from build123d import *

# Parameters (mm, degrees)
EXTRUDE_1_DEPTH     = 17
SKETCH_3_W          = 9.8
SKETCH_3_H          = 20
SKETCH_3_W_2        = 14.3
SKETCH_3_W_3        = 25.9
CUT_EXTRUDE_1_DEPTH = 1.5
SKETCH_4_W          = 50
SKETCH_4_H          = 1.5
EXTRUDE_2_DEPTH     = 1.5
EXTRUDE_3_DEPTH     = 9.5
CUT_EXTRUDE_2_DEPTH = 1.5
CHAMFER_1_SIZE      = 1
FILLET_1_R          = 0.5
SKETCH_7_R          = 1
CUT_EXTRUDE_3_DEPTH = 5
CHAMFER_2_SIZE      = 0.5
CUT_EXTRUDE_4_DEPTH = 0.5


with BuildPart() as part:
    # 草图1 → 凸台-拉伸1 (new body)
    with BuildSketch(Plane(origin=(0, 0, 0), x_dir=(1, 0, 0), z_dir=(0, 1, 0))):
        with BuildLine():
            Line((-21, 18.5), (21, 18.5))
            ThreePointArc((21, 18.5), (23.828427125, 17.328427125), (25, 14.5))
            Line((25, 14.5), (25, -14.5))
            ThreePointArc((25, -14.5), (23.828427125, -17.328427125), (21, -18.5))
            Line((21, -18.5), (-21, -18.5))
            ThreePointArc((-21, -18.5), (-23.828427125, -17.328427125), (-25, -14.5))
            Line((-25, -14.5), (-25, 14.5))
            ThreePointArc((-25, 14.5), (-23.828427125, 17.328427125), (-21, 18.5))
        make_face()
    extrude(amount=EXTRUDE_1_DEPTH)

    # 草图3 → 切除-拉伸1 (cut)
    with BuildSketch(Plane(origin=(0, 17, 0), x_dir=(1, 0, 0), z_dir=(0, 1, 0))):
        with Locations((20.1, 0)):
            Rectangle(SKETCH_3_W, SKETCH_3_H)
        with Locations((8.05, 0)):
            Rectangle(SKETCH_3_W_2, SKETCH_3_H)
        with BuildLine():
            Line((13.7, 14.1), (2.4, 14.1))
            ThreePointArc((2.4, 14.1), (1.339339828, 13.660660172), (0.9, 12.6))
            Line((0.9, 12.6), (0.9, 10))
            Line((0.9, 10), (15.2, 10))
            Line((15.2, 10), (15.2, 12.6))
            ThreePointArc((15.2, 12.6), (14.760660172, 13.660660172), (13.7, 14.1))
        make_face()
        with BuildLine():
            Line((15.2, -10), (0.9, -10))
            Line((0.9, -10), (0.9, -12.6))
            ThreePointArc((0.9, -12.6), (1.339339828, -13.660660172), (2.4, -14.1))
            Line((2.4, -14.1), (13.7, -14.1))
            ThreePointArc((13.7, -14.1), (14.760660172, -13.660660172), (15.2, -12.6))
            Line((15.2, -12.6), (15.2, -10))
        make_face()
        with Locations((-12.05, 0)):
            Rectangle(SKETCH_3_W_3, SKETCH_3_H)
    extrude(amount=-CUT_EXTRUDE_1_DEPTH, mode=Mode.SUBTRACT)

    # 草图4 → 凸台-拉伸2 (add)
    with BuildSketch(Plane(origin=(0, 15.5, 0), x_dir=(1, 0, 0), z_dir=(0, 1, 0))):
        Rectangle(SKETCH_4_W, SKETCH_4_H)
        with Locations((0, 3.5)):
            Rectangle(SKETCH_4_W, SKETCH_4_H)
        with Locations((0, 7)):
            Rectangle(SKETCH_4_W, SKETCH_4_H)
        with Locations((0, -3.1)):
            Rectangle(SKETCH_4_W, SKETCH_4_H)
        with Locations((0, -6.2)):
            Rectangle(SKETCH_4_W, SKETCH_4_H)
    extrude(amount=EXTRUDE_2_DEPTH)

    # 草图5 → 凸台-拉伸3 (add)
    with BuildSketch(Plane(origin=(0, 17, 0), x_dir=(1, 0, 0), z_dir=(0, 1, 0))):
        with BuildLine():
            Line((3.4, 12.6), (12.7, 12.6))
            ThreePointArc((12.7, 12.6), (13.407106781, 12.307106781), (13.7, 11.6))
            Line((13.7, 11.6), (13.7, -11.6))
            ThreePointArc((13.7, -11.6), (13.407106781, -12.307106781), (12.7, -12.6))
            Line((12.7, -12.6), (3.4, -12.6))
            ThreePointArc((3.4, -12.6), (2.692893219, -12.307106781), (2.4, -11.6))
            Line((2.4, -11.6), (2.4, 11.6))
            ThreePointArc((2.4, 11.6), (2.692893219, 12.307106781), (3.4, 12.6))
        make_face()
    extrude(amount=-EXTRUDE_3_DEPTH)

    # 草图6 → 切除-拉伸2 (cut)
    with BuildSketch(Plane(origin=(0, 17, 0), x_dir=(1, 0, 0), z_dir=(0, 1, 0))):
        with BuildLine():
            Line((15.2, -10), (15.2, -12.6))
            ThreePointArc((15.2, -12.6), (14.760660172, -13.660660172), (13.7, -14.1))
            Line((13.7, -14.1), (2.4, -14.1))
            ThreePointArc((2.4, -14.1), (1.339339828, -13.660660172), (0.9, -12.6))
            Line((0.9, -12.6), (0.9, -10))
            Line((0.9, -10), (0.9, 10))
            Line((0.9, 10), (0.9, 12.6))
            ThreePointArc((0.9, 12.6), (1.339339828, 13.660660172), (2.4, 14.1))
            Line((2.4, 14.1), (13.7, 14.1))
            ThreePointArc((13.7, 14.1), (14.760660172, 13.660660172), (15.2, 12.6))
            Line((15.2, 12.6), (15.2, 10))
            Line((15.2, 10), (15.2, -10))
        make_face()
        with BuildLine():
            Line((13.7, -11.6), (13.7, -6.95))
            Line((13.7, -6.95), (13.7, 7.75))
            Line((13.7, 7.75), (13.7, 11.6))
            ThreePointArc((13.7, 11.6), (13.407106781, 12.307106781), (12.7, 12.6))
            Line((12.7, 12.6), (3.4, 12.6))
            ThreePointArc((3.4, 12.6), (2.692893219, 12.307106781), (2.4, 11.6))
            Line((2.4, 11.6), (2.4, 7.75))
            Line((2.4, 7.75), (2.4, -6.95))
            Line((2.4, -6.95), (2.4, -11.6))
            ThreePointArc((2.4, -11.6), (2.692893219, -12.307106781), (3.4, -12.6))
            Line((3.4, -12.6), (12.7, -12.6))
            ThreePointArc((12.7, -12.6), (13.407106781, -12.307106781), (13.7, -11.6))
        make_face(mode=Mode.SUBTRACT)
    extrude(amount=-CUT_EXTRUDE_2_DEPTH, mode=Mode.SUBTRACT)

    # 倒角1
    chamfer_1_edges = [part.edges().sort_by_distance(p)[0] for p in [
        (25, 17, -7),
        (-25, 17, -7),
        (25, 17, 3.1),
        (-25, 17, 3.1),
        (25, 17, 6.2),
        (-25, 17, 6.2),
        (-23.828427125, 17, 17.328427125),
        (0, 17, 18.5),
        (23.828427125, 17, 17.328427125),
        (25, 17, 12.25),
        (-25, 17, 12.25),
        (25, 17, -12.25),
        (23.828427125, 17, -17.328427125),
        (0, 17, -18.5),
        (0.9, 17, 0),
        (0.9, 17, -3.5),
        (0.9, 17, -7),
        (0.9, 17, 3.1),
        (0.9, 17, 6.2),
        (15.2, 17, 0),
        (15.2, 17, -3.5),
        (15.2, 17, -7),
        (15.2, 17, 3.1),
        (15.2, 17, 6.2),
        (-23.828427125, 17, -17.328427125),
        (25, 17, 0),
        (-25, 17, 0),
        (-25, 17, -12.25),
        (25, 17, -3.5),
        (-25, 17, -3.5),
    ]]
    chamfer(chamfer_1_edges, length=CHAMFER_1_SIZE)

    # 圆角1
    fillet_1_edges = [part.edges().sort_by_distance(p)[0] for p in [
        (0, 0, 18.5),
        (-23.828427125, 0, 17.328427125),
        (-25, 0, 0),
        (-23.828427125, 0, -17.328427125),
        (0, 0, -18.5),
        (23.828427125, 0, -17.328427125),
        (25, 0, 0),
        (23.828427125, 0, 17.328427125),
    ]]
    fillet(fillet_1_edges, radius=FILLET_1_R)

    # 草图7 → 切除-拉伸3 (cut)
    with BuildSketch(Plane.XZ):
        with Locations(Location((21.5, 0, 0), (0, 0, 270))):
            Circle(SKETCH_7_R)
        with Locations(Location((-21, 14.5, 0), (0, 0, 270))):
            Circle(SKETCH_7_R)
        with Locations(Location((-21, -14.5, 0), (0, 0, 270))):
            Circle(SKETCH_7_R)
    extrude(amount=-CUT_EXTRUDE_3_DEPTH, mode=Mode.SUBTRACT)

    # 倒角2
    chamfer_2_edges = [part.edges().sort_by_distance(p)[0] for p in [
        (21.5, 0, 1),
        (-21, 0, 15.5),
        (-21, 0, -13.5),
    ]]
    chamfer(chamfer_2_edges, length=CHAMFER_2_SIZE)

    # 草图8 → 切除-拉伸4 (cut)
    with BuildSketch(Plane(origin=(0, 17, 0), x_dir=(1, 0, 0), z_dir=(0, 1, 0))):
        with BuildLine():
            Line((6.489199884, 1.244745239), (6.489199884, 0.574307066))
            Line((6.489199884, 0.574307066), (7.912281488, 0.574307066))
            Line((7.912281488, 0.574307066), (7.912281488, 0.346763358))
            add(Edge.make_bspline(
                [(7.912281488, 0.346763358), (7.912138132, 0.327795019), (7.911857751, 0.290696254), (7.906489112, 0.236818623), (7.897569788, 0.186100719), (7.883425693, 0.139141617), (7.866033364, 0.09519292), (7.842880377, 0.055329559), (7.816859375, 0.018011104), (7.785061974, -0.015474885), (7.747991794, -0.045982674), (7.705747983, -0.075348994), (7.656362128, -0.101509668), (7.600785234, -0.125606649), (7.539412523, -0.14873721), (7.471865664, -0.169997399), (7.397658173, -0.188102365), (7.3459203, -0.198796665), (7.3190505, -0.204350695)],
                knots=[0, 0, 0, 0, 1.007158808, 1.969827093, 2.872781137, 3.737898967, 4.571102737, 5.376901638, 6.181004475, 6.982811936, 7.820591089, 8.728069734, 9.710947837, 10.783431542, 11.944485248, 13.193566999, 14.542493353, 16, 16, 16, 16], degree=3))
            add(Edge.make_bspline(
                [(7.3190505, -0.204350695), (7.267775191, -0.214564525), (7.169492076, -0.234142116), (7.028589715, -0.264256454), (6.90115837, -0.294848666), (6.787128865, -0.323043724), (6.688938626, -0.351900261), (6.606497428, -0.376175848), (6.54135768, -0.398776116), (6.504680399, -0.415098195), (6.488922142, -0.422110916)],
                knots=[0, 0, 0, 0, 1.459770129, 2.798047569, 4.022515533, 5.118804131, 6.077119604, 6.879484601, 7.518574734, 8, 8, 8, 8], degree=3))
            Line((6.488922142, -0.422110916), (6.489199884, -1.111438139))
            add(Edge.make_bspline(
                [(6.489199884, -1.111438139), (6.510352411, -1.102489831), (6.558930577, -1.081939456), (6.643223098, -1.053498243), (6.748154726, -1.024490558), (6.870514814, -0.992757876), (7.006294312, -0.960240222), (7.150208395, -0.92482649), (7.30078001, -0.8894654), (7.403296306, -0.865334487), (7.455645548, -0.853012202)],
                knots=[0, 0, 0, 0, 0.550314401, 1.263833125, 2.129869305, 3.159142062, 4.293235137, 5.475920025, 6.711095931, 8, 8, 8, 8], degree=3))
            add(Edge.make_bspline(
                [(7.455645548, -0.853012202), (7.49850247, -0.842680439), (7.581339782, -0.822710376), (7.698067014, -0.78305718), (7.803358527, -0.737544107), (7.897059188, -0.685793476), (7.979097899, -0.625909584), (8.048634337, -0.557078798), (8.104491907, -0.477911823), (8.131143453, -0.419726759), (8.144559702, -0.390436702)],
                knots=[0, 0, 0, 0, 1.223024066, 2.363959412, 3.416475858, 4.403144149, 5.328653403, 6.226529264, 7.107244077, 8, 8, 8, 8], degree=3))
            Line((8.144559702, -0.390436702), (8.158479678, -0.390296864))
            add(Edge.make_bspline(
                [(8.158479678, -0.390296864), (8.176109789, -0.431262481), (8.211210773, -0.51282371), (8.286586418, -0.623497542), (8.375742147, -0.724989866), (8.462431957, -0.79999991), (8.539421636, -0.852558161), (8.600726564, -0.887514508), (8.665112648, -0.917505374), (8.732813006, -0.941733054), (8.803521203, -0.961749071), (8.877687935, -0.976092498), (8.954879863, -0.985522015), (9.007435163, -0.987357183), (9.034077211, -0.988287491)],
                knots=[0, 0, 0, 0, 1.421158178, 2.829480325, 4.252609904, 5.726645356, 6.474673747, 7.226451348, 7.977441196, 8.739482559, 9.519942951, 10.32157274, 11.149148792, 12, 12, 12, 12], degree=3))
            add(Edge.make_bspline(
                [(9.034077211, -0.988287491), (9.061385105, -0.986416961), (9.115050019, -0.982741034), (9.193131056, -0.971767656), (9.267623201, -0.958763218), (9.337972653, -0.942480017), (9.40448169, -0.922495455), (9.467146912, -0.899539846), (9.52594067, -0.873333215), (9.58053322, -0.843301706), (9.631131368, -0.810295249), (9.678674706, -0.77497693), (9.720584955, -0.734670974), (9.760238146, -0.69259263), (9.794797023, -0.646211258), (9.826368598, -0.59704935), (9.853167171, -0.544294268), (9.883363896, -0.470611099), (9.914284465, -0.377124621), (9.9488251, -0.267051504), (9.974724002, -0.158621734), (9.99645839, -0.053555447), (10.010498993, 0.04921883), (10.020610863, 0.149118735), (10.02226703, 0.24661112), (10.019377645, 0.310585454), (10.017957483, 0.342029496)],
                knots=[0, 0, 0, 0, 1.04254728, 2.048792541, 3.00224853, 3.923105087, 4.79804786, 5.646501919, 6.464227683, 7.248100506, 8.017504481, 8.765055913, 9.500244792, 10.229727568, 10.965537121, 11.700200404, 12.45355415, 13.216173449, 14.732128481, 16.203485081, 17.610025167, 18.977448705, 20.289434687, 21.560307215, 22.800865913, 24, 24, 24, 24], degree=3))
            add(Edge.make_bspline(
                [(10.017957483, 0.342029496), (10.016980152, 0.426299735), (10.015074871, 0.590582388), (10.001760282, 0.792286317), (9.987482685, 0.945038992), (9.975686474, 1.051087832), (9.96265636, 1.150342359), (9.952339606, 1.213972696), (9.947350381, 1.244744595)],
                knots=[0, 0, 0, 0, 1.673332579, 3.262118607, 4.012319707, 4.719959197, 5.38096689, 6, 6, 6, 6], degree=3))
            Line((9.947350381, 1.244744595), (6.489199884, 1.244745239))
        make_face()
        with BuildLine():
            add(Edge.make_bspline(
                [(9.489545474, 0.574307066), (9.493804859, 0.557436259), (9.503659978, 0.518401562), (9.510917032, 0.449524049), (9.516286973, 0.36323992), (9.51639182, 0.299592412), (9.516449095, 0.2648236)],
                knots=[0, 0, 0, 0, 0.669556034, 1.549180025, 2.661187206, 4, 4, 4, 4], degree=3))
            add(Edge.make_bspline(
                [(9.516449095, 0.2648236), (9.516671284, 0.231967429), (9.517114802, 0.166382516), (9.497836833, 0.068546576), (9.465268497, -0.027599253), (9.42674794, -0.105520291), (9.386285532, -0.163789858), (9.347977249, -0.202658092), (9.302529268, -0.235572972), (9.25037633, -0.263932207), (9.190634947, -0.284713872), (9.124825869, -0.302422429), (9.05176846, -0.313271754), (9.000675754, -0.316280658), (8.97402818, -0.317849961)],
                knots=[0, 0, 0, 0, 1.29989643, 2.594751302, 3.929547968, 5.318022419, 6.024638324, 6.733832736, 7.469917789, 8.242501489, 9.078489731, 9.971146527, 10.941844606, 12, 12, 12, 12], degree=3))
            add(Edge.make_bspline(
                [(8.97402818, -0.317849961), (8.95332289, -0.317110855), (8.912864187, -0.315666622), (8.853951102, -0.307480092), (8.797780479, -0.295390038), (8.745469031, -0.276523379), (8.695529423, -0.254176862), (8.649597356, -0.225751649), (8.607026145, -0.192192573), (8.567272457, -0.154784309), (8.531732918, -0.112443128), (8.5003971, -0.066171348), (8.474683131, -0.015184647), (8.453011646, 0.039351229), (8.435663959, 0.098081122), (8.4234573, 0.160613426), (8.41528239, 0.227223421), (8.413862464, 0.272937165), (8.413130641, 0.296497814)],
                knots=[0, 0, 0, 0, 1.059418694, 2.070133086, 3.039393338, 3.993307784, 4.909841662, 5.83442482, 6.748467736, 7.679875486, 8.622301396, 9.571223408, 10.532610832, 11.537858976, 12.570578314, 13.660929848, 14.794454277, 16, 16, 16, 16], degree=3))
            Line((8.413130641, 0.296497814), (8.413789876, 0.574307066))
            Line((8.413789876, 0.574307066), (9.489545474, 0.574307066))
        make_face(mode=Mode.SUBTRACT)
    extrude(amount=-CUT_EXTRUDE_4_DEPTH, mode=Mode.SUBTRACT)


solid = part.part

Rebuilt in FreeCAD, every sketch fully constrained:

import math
import FreeCAD as App
import Part
import Sketcher
Q = App.Units.Quantity


def edges_at(feature, points):
    """Names of the edges that pass closest to the given points."""
    edges = feature.Shape.Edges
    near = lambda p: min(range(len(edges)), key=lambda i: edges[i].distToShape(Part.Vertex(*p))[0])
    return sorted({f"Edge{near(p) + 1}" for p in points})


def add_polygon(sketch, points):
    """Adds a closed chain of lines whose ends are joined by coincident constraints."""
    first, n = sketch.GeometryCount, len(points)
    for a, b in zip(points, points[1:] + points[:1]):
        sketch.addGeometry(Part.LineSegment(App.Vector(*a, 0), App.Vector(*b, 0)), False)
    for i in range(n):
        sketch.addConstraint(Sketcher.Constraint("Coincident", first + i, 2, first + (i + 1) % n, 1))

doc = App.newDocument("Part")
body = doc.addObject("PartDesign::Body", "Body")

sketch1 = body.newObject("Sketcher::SketchObject", "Sketch")
sketch1.AttachmentSupport = (doc.getObject("XZ_Plane"), [""])
sketch1.MapMode = "FlatFace"
sketch1.addGeometry([
    Part.LineSegment(App.Vector(21, -18.5, 0), App.Vector(-21, -18.5, 0)),
    Part.ArcOfCircle(Part.Circle(App.Vector(-21, -14.5, 0), App.Vector(0, 0, 1), 4), math.radians(180), math.radians(270)),
    Part.LineSegment(App.Vector(-25, -14.5, 0), App.Vector(-25, 14.5, 0)),
    Part.ArcOfCircle(Part.Circle(App.Vector(-21, 14.5, 0), App.Vector(0, 0, 1), 4), math.radians(90), math.radians(180)),
    Part.LineSegment(App.Vector(-21, 18.5, 0), App.Vector(21, 18.5, 0)),
    Part.ArcOfCircle(Part.Circle(App.Vector(21, 14.5, 0), App.Vector(0, 0, 1), 4), math.radians(0), math.radians(90)),
    Part.LineSegment(App.Vector(25, 14.5, 0), App.Vector(25, -14.5, 0)),
    Part.ArcOfCircle(Part.Circle(App.Vector(21, -14.5, 0), App.Vector(0, 0, 1), 4), math.radians(-90), math.radians(0)),
], False)
sketch1.addConstraint([
    Sketcher.Constraint("Tangent", 0, 2, 1, 2),
    Sketcher.Constraint("Tangent", 1, 1, 2, 1),
    Sketcher.Constraint("Tangent", 2, 2, 3, 2),
    Sketcher.Constraint("Tangent", 3, 1, 4, 1),
    Sketcher.Constraint("Tangent", 4, 2, 5, 2),
    Sketcher.Constraint("Tangent", 5, 1, 6, 1),
    Sketcher.Constraint("Tangent", 6, 2, 7, 2),
    Sketcher.Constraint("Tangent", 7, 1, 0, 1),
    Sketcher.Constraint("Horizontal", 0),
    Sketcher.Constraint("Vertical", 2),
    Sketcher.Constraint("Horizontal", 4),
    Sketcher.Constraint("Vertical", 6),
    Sketcher.Constraint("Equal", 1, 3),
    Sketcher.Constraint("Equal", 3, 5),
    Sketcher.Constraint("Equal", 5, 7),
    Sketcher.Constraint("Symmetric", 1, 3, 5, 3, -1, 1),
    Sketcher.Constraint("Radius", 1, Q("4 mm")),
    Sketcher.Constraint("DistanceX", 0, 2, 0, 1, Q("42 mm")),
    Sketcher.Constraint("DistanceY", 2, 1, 2, 2, Q("29 mm")),
])
pad1 = body.newObject("PartDesign::Pad", "Pad")
pad1.Profile = sketch1
pad1.Length = 17
pad1.Reversed = True

sketch2 = body.newObject("Sketcher::SketchObject", "Sketch001")
sketch2.AttachmentSupport = (doc.getObject("XZ_Plane"), [""])
sketch2.MapMode = "FlatFace"
sketch2.AttachmentOffset = App.Placement(App.Vector(0, 0, -17), App.Rotation())
sketch2.addGeometry([
    Part.LineSegment(App.Vector(25, 10, 0), App.Vector(25, -10, 0)),
    Part.LineSegment(App.Vector(25, -10, 0), App.Vector(15.2, -10, 0)),
    Part.LineSegment(App.Vector(15.2, -10, 0), App.Vector(15.2, -12.6, 0)),
    Part.ArcOfCircle(Part.Circle(App.Vector(13.7, -12.6, 0), App.Vector(0, 0, 1), 1.5), math.radians(-90), math.radians(0)),
    Part.LineSegment(App.Vector(13.7, -14.1, 0), App.Vector(2.4, -14.1, 0)),
    Part.ArcOfCircle(Part.Circle(App.Vector(2.4, -12.6, 0), App.Vector(0, 0, 1), 1.5), math.radians(180), math.radians(270)),
    Part.LineSegment(App.Vector(0.9, -12.6, 0), App.Vector(0.9, -10, 0)),
    Part.LineSegment(App.Vector(0.9, -10, 0), App.Vector(-25, -10, 0)),
    Part.LineSegment(App.Vector(-25, -10, 0), App.Vector(-25, 10, 0)),
    Part.LineSegment(App.Vector(-25, 10, 0), App.Vector(0.9, 10, 0)),
    Part.LineSegment(App.Vector(0.9, 10, 0), App.Vector(0.9, 12.6, 0)),
    Part.ArcOfCircle(Part.Circle(App.Vector(2.4, 12.6, 0), App.Vector(0, 0, 1), 1.5), math.radians(90), math.radians(180)),
    Part.LineSegment(App.Vector(2.4, 14.1, 0), App.Vector(13.7, 14.1, 0)),
    Part.ArcOfCircle(Part.Circle(App.Vector(13.7, 12.6, 0), App.Vector(0, 0, 1), 1.5), math.radians(0), math.radians(90)),
    Part.LineSegment(App.Vector(15.2, 12.6, 0), App.Vector(15.2, 10, 0)),
    Part.LineSegment(App.Vector(15.2, 10, 0), App.Vector(25, 10, 0)),
], False)
sketch2.addConstraint([
    Sketcher.Constraint("Coincident", 0, 2, 1, 1),
    Sketcher.Constraint("Coincident", 1, 2, 2, 1),
    Sketcher.Constraint("Tangent", 2, 2, 3, 2),
    Sketcher.Constraint("Tangent", 3, 1, 4, 1),
    Sketcher.Constraint("Tangent", 4, 2, 5, 2),
    Sketcher.Constraint("Tangent", 5, 1, 6, 1),
    Sketcher.Constraint("Coincident", 6, 2, 7, 1),
    Sketcher.Constraint("Coincident", 7, 2, 8, 1),
    Sketcher.Constraint("Coincident", 8, 2, 9, 1),
    Sketcher.Constraint("Coincident", 9, 2, 10, 1),
    Sketcher.Constraint("Tangent", 10, 2, 11, 2),
    Sketcher.Constraint("Tangent", 11, 1, 12, 1),
    Sketcher.Constraint("Tangent", 12, 2, 13, 2),
    Sketcher.Constraint("Tangent", 13, 1, 14, 1),
    Sketcher.Constraint("Coincident", 14, 2, 15, 1),
    Sketcher.Constraint("Coincident", 15, 2, 0, 1),
    Sketcher.Constraint("Vertical", 0),
    Sketcher.Constraint("Horizontal", 1),
    Sketcher.Constraint("Vertical", 2),
    Sketcher.Constraint("Horizontal", 4),
    Sketcher.Constraint("Vertical", 6),
    Sketcher.Constraint("Horizontal", 7),
    Sketcher.Constraint("Vertical", 8),
    Sketcher.Constraint("Horizontal", 9),
    Sketcher.Constraint("Vertical", 10),
    Sketcher.Constraint("Horizontal", 12),
    Sketcher.Constraint("Vertical", 14),
    Sketcher.Constraint("Horizontal", 15),
    Sketcher.Constraint("Equal", 3, 5),
    Sketcher.Constraint("Equal", 5, 11),
    Sketcher.Constraint("Equal", 11, 13),
    Sketcher.Constraint("Symmetric", 0, 2, 8, 2, -1, 1),
    Sketcher.Constraint("Symmetric", 5, 3, 11, 3, -1),
    Sketcher.Constraint("Symmetric", 1, 2, 14, 2, -1),
    Sketcher.Constraint("Horizontal", 1, 2, 6, 2),
    Sketcher.Constraint("Radius", 3, Q("1.5 mm")),
    Sketcher.Constraint("DistanceY", 0, 2, 0, 1, Q("20 mm")),
    Sketcher.Constraint("DistanceX", 1, 2, 1, 1, Q("9.8 mm")),
    Sketcher.Constraint("DistanceX", 4, 2, 4, 1, Q("11.3 mm")),
    Sketcher.Constraint("DistanceX", 7, 2, 7, 1, Q("25.9 mm")),
    Sketcher.Constraint("DistanceY", 2, 2, 2, 1, Q("2.6 mm")),
])
pocket1 = body.newObject("PartDesign::Pocket", "Pocket")
pocket1.Profile = sketch2
pocket1.Length = 1.5
pocket1.Reversed = True

sketch3 = body.newObject("Sketcher::SketchObject", "Sketch002")
sketch3.AttachmentSupport = (doc.getObject("XZ_Plane"), [""])
sketch3.MapMode = "FlatFace"
sketch3.AttachmentOffset = App.Placement(App.Vector(0, 0, -15.5), App.Rotation())
add_polygon(sketch3, [(-25, -0.75), (-25, 0.75), (25, 0.75), (25, -0.75)])
add_polygon(sketch3, [(-25, -4.25), (-25, -2.75), (25, -2.75), (25, -4.25)])
add_polygon(sketch3, [(-25, -7.75), (-25, -6.25), (25, -6.25), (25, -7.75)])
add_polygon(sketch3, [(-25, 2.35), (-25, 3.85), (25, 3.85), (25, 2.35)])
add_polygon(sketch3, [(-25, 5.45), (-25, 6.95), (25, 6.95), (25, 5.45)])
sketch3.addConstraint([
    Sketcher.Constraint("Vertical", 0),
    Sketcher.Constraint("Horizontal", 1),
    Sketcher.Constraint("Vertical", 2),
    Sketcher.Constraint("Horizontal", 3),
    Sketcher.Constraint("Vertical", 4),
    Sketcher.Constraint("Horizontal", 5),
    Sketcher.Constraint("Vertical", 6),
    Sketcher.Constraint("Horizontal", 7),
    Sketcher.Constraint("Vertical", 8),
    Sketcher.Constraint("Horizontal", 9),
    Sketcher.Constraint("Vertical", 10),
    Sketcher.Constraint("Horizontal", 11),
    Sketcher.Constraint("Vertical", 12),
    Sketcher.Constraint("Horizontal", 13),
    Sketcher.Constraint("Vertical", 14),
    Sketcher.Constraint("Horizontal", 15),
    Sketcher.Constraint("Vertical", 16),
    Sketcher.Constraint("Horizontal", 17),
    Sketcher.Constraint("Vertical", 18),
    Sketcher.Constraint("Horizontal", 19),
    Sketcher.Constraint("Symmetric", 0, 2, 2, 2, -1, 1),
    Sketcher.Constraint("Vertical", 3, 2, 4, 2),
    Sketcher.Constraint("Vertical", 2, 2, 5, 2),
    Sketcher.Constraint("Vertical", 7, 2, 8, 2),
    Sketcher.Constraint("Vertical", 6, 2, 9, 2),
    Sketcher.Constraint("Vertical", 11, 2, 12, 2),
    Sketcher.Constraint("Vertical", 10, 2, 13, 2),
    Sketcher.Constraint("Vertical", 15, 2, 16, 2),
    Sketcher.Constraint("Vertical", 14, 2, 17, 2),
    Sketcher.Constraint("Equal", 2, 4),
    Sketcher.Constraint("Equal", 6, 8),
    Sketcher.Constraint("Equal", 10, 12),
    Sketcher.Constraint("Equal", 14, 16),
    Sketcher.Constraint("DistanceX", 1, 1, 1, 2, Q("50 mm")),
    Sketcher.Constraint("DistanceY", 0, 1, 0, 2, Q("1.5 mm")),
    Sketcher.Constraint("DistanceY", 4, 2, 3, 2, Q("2 mm")),
    Sketcher.Constraint("DistanceY", 8, 2, 7, 2, Q("2 mm")),
    Sketcher.Constraint("DistanceY", 0, 2, 12, 2, Q("3.1 mm")),
    Sketcher.Constraint("DistanceY", 12, 2, 16, 2, Q("3.1 mm")),
])
pad2 = body.newObject("PartDesign::Pad", "Pad001")
pad2.Profile = sketch3
pad2.Length = 1.5
pad2.Reversed = True

sketch4 = body.newObject("Sketcher::SketchObject", "Sketch003")
sketch4.AttachmentSupport = (doc.getObject("XZ_Plane"), [""])
sketch4.MapMode = "FlatFace"
sketch4.AttachmentOffset = App.Placement(App.Vector(0, 0, -17), App.Rotation())
sketch4.addGeometry([
    Part.LineSegment(App.Vector(12.7, -12.6, 0), App.Vector(3.4, -12.6, 0)),
    Part.ArcOfCircle(Part.Circle(App.Vector(3.4, -11.6, 0), App.Vector(0, 0, 1), 1), math.radians(-180), math.radians(-90)),
    Part.LineSegment(App.Vector(2.4, -11.6, 0), App.Vector(2.4, 11.6, 0)),
    Part.ArcOfCircle(Part.Circle(App.Vector(3.4, 11.6, 0), App.Vector(0, 0, 1), 1), math.radians(90), math.radians(180)),
    Part.LineSegment(App.Vector(3.4, 12.6, 0), App.Vector(12.7, 12.6, 0)),
    Part.ArcOfCircle(Part.Circle(App.Vector(12.7, 11.6, 0), App.Vector(0, 0, 1), 1), math.radians(0), math.radians(90)),
    Part.LineSegment(App.Vector(13.7, 11.6, 0), App.Vector(13.7, -11.6, 0)),
    Part.ArcOfCircle(Part.Circle(App.Vector(12.7, -11.6, 0), App.Vector(0, 0, 1), 1), math.radians(-90), math.radians(0)),
], False)
sketch4.addConstraint([
    Sketcher.Constraint("Tangent", 0, 2, 1, 2),
    Sketcher.Constraint("Tangent", 1, 1, 2, 1),
    Sketcher.Constraint("Tangent", 2, 2, 3, 2),
    Sketcher.Constraint("Tangent", 3, 1, 4, 1),
    Sketcher.Constraint("Tangent", 4, 2, 5, 2),
    Sketcher.Constraint("Tangent", 5, 1, 6, 1),
    Sketcher.Constraint("Tangent", 6, 2, 7, 2),
    Sketcher.Constraint("Tangent", 7, 1, 0, 1),
    Sketcher.Constraint("Horizontal", 0),
    Sketcher.Constraint("Vertical", 2),
    Sketcher.Constraint("Horizontal", 4),
    Sketcher.Constraint("Vertical", 6),
    Sketcher.Constraint("Equal", 1, 3),
    Sketcher.Constraint("Equal", 3, 5),
    Sketcher.Constraint("Equal", 5, 7),
    Sketcher.Constraint("Radius", 1, Q("1 mm")),
    Sketcher.Constraint("DistanceX", 0, 2, 0, 1, Q("9.3 mm")),
    Sketcher.Constraint("DistanceY", 2, 1, 2, 2, Q("23.2 mm")),
    Sketcher.Constraint("DistanceX", -1, 1, 1, 3, Q("3.4 mm")),
    Sketcher.Constraint("DistanceY", 1, 3, -1, 1, Q("11.6 mm")),
])
pad3 = body.newObject("PartDesign::Pad", "Pad002")
pad3.Profile = sketch4
pad3.Length = 9.5

sketch5 = body.newObject("Sketcher::SketchObject", "Sketch004")
sketch5.AttachmentSupport = (doc.getObject("XZ_Plane"), [""])
sketch5.MapMode = "FlatFace"
sketch5.AttachmentOffset = App.Placement(App.Vector(0, 0, -17), App.Rotation())
sketch5.addGeometry([
    Part.ArcOfCircle(Part.Circle(App.Vector(13.7, 12.6, 0), App.Vector(0, 0, 1), 1.5), math.radians(0), math.radians(90)),
    Part.LineSegment(App.Vector(15.2, 12.6, 0), App.Vector(15.2, -12.6, 0)),
    Part.ArcOfCircle(Part.Circle(App.Vector(13.7, -12.6, 0), App.Vector(0, 0, 1), 1.5), math.radians(-90), math.radians(0)),
    Part.LineSegment(App.Vector(13.7, -14.1, 0), App.Vector(2.4, -14.1, 0)),
    Part.ArcOfCircle(Part.Circle(App.Vector(2.4, -12.6, 0), App.Vector(0, 0, 1), 1.5), math.radians(180), math.radians(270)),
    Part.LineSegment(App.Vector(0.9, -12.6, 0), App.Vector(0.9, 12.6, 0)),
    Part.ArcOfCircle(Part.Circle(App.Vector(2.4, 12.6, 0), App.Vector(0, 0, 1), 1.5), math.radians(90), math.radians(180)),
    Part.LineSegment(App.Vector(2.4, 14.1, 0), App.Vector(13.7, 14.1, 0)),
    Part.ArcOfCircle(Part.Circle(App.Vector(12.7, 11.6, 0), App.Vector(0, 0, 1), 1), math.radians(0), math.radians(90)),
    Part.LineSegment(App.Vector(12.7, 12.6, 0), App.Vector(3.4, 12.6, 0)),
    Part.ArcOfCircle(Part.Circle(App.Vector(3.4, 11.6, 0), App.Vector(0, 0, 1), 1), math.radians(90), math.radians(180)),
    Part.LineSegment(App.Vector(2.4, 11.6, 0), App.Vector(2.4, -11.6, 0)),
    Part.ArcOfCircle(Part.Circle(App.Vector(3.4, -11.6, 0), App.Vector(0, 0, 1), 1), math.radians(-180), math.radians(-90)),
    Part.LineSegment(App.Vector(3.4, -12.6, 0), App.Vector(12.7, -12.6, 0)),
    Part.ArcOfCircle(Part.Circle(App.Vector(12.7, -11.6, 0), App.Vector(0, 0, 1), 1), math.radians(-90), math.radians(0)),
    Part.LineSegment(App.Vector(13.7, -11.6, 0), App.Vector(13.7, 11.6, 0)),
], False)
sketch5.addConstraint([
    Sketcher.Constraint("Tangent", 0, 1, 1, 1),
    Sketcher.Constraint("Tangent", 1, 2, 2, 2),
    Sketcher.Constraint("Tangent", 2, 1, 3, 1),
    Sketcher.Constraint("Tangent", 3, 2, 4, 2),
    Sketcher.Constraint("Tangent", 4, 1, 5, 1),
    Sketcher.Constraint("Tangent", 5, 2, 6, 2),
    Sketcher.Constraint("Tangent", 6, 1, 7, 1),
    Sketcher.Constraint("Tangent", 7, 2, 0, 2),
    Sketcher.Constraint("Tangent", 8, 2, 9, 1),
    Sketcher.Constraint("Tangent", 9, 2, 10, 1),
    Sketcher.Constraint("Tangent", 10, 2, 11, 1),
    Sketcher.Constraint("Tangent", 11, 2, 12, 1),
    Sketcher.Constraint("Tangent", 12, 2, 13, 1),
    Sketcher.Constraint("Tangent", 13, 2, 14, 1),
    Sketcher.Constraint("Tangent", 14, 2, 15, 1),
    Sketcher.Constraint("Tangent", 15, 2, 8, 1),
    Sketcher.Constraint("Vertical", 1),
    Sketcher.Constraint("Horizontal", 3),
    Sketcher.Constraint("Vertical", 5),
    Sketcher.Constraint("Horizontal", 7),
    Sketcher.Constraint("Horizontal", 9),
    Sketcher.Constraint("Vertical", 11),
    Sketcher.Constraint("Horizontal", 13),
    Sketcher.Constraint("Vertical", 15),
    Sketcher.Constraint("Equal", 0, 2),
    Sketcher.Constraint("Equal", 2, 4),
    Sketcher.Constraint("Equal", 4, 6),
    Sketcher.Constraint("Equal", 8, 10),
    Sketcher.Constraint("Equal", 10, 12),
    Sketcher.Constraint("Equal", 12, 14),
    Sketcher.Constraint("Horizontal", 5, 2, 8, 2),
    Sketcher.Constraint("Horizontal", 4, 1, 12, 2),
    Sketcher.Constraint("Vertical", 6, 1, 10, 2),
    Sketcher.Constraint("Vertical", 7, 2, 14, 2),
    Sketcher.Constraint("Radius", 8, Q("1 mm")),
    Sketcher.Constraint("Radius", 0, Q("1.5 mm")),
    Sketcher.Constraint("DistanceX", 3, 2, 3, 1, Q("11.3 mm")),
    Sketcher.Constraint("DistanceY", 1, 2, 1, 1, Q("25.2 mm")),
    Sketcher.Constraint("DistanceX", -1, 1, 0, 3, Q("13.7 mm")),
    Sketcher.Constraint("DistanceY", -1, 1, 0, 3, Q("12.6 mm")),
])
pocket2 = body.newObject("PartDesign::Pocket", "Pocket001")
pocket2.Profile = sketch5
pocket2.Length = 1.5
pocket2.Reversed = True
doc.recompute()

chamfer = body.newObject("PartDesign::Chamfer", "Chamfer")
chamfer.Base = (pocket2, edges_at(pocket2, [
    (25, 17, -7),
    (-25, 17, -7),
    (25, 17, 3.1),
    (-25, 17, 3.1),
    (25, 17, 6.2),
    (-25, 17, 6.2),
    (-23.828, 17, 17.328),
    (0, 17, 18.5),
    (23.828, 17, 17.328),
    (25, 17, 12.25),
    (-25, 17, 12.25),
    (25, 17, -12.25),
    (23.828, 17, -17.328),
    (0, 17, -18.5),
    (0.9, 17, 0),
    (0.9, 17, -3.5),
    (0.9, 17, -7),
    (0.9, 17, 3.1),
    (0.9, 17, 6.2),
    (15.2, 17, 0),
    (15.2, 17, -3.5),
    (15.2, 17, -7),
    (15.2, 17, 3.1),
    (15.2, 17, 6.2),
    (-23.828, 17, -17.328),
    (25, 17, 0),
    (-25, 17, 0),
    (-25, 17, -12.25),
    (25, 17, -3.5),
    (-25, 17, -3.5),
]))
chamfer.Size = 1
doc.recompute()

fillet = body.newObject("PartDesign::Fillet", "Fillet")
fillet.Base = (chamfer, edges_at(chamfer, [
    (0, 0, 18.5),
    (-23.828, 0, 17.328),
    (-25, 0, 0),
    (-23.828, 0, -17.328),
    (0, 0, -18.5),
    (23.828, 0, -17.328),
    (25, 0, 0),
    (23.828, 0, 17.328),
]))
fillet.Radius = 0.5

sketch6 = body.newObject("Sketcher::SketchObject", "Sketch005")
sketch6.AttachmentSupport = (doc.getObject("XZ_Plane"), [""])
sketch6.MapMode = "FlatFace"
sketch6.addGeometry([
    Part.Circle(App.Vector(21.5, 0, 0), App.Vector(0, 0, 1), 1),
    Part.Circle(App.Vector(-21, 14.5, 0), App.Vector(0, 0, 1), 1),
    Part.Circle(App.Vector(-21, -14.5, 0), App.Vector(0, 0, 1), 1),
], False)
sketch6.addConstraint([
    Sketcher.Constraint("Equal", 0, 1),
    Sketcher.Constraint("Equal", 1, 2),
    Sketcher.Constraint("Symmetric", 1, 3, 2, 3, -1),
    Sketcher.Constraint("PointOnObject", 0, 3, -1),
    Sketcher.Constraint("Diameter", 0, Q("2 mm")),
    Sketcher.Constraint("DistanceX", 1, 3, -1, 1, Q("21 mm")),
    Sketcher.Constraint("DistanceY", 2, 3, 1, 3, Q("29 mm")),
    Sketcher.Constraint("DistanceX", -1, 1, 0, 3, Q("21.5 mm")),
])
pocket3 = body.newObject("PartDesign::Pocket", "Pocket002")
pocket3.Profile = sketch6
pocket3.Length = 5
doc.recompute()

chamfer2 = body.newObject("PartDesign::Chamfer", "Chamfer001")
chamfer2.Base = (pocket3, edges_at(pocket3, [(21.5, 0, 1), (-21, 0, 15.5), (-21, 0, -13.5)]))
chamfer2.Size = 0.5

sketch7 = body.newObject("Sketcher::SketchObject", "Sketch006")
sketch7.AttachmentSupport = (doc.getObject("XZ_Plane"), [""])
sketch7.MapMode = "FlatFace"
sketch7.AttachmentOffset = App.Placement(App.Vector(0, 0, -17), App.Rotation())
sketch7.addGeometry([
    Part.LineSegment(App.Vector(6.4892, -1.244745, 0), App.Vector(6.4892, -0.574307, 0)),
    Part.LineSegment(App.Vector(6.4892, -0.574307, 0), App.Vector(7.912281, -0.574307, 0)),
    Part.LineSegment(App.Vector(7.912281, -0.574307, 0), App.Vector(7.912281, -0.346763, 0)),
    Part.BSplineCurve([App.Vector(7.912281, -0.346763, 0), App.Vector(7.912138, -0.327795, 0), App.Vector(7.911858, -0.290696, 0), App.Vector(7.906489, -0.236819, 0), App.Vector(7.89757, -0.186101, 0), App.Vector(7.883426, -0.139142, 0), App.Vector(7.866033, -0.095193, 0), App.Vector(7.84288, -0.05533, 0), App.Vector(7.816859, -0.018011, 0), App.Vector(7.785062, 0.015475, 0), App.Vector(7.747992, 0.045983, 0), App.Vector(7.705748, 0.075349, 0), App.Vector(7.656362, 0.10151, 0), App.Vector(7.600785, 0.125607, 0), App.Vector(7.539413, 0.148737, 0), App.Vector(7.471866, 0.169997, 0), App.Vector(7.397658, 0.188102, 0), App.Vector(7.34592, 0.198797, 0), App.Vector(7.319051, 0.204351, 0)], [4, 1, 1, 1, 1, 1, 1, 1, 1, 1, 1, 1, 1, 1, 1, 1, 4], [0, 1.007158808, 1.969827093, 2.872781137, 3.737898967, 4.571102737, 5.376901638, 6.181004475, 6.982811936, 7.820591089, 8.728069734, 9.710947837, 10.783431542, 11.944485248, 13.193566999, 14.542493353, 16], False, 3, [1, 1, 1, 1, 1, 1, 1, 1, 1, 1, 1, 1, 1, 1, 1, 1, 1, 1, 1], False),
    Part.BSplineCurve([App.Vector(7.319051, 0.204351, 0), App.Vector(7.267775, 0.214565, 0), App.Vector(7.169492, 0.234142, 0), App.Vector(7.02859, 0.264256, 0), App.Vector(6.901158, 0.294849, 0), App.Vector(6.787129, 0.323044, 0), App.Vector(6.688939, 0.3519, 0), App.Vector(6.606497, 0.376176, 0), App.Vector(6.541358, 0.398776, 0), App.Vector(6.50468, 0.415098, 0), App.Vector(6.488922, 0.422111, 0)], [4, 1, 1, 1, 1, 1, 1, 1, 4], [0, 1.459770129, 2.798047569, 4.022515533, 5.118804131, 6.077119604, 6.879484601, 7.518574734, 8], False, 3, [1, 1, 1, 1, 1, 1, 1, 1, 1, 1, 1], False),
    Part.LineSegment(App.Vector(6.488922, 0.422111, 0), App.Vector(6.4892, 1.111438, 0)),
    Part.BSplineCurve([App.Vector(6.4892, 1.111438, 0), App.Vector(6.510352, 1.10249, 0), App.Vector(6.558931, 1.081939, 0), App.Vector(6.643223, 1.053498, 0), App.Vector(6.748155, 1.024491, 0), App.Vector(6.870515, 0.992758, 0), App.Vector(7.006294, 0.96024, 0), App.Vector(7.150208, 0.924826, 0), App.Vector(7.30078, 0.889465, 0), App.Vector(7.403296, 0.865334, 0), App.Vector(7.455646, 0.853012, 0)], [4, 1, 1, 1, 1, 1, 1, 1, 4], [0, 0.550314401, 1.263833125, 2.129869305, 3.159142062, 4.293235137, 5.475920025, 6.711095931, 8], False, 3, [1, 1, 1, 1, 1, 1, 1, 1, 1, 1, 1], False),
    Part.BSplineCurve([App.Vector(7.455646, 0.853012, 0), App.Vector(7.498502, 0.84268, 0), App.Vector(7.58134, 0.82271, 0), App.Vector(7.698067, 0.783057, 0), App.Vector(7.803359, 0.737544, 0), App.Vector(7.897059, 0.685793, 0), App.Vector(7.979098, 0.62591, 0), App.Vector(8.048634, 0.557079, 0), App.Vector(8.104492, 0.477912, 0), App.Vector(8.131143, 0.419727, 0), App.Vector(8.14456, 0.390437, 0)], [4, 1, 1, 1, 1, 1, 1, 1, 4], [0, 1.223024066, 2.363959412, 3.416475858, 4.403144149, 5.328653403, 6.226529264, 7.107244077, 8], False, 3, [1, 1, 1, 1, 1, 1, 1, 1, 1, 1, 1], False),
    Part.LineSegment(App.Vector(8.14456, 0.390437, 0), App.Vector(8.15848, 0.390297, 0)),
    Part.BSplineCurve([App.Vector(8.15848, 0.390297, 0), App.Vector(8.17611, 0.431262, 0), App.Vector(8.211211, 0.512824, 0), App.Vector(8.286586, 0.623498, 0), App.Vector(8.375742, 0.72499, 0), App.Vector(8.462432, 0.8, 0), App.Vector(8.539422, 0.852558, 0), App.Vector(8.600727, 0.887515, 0), App.Vector(8.665113, 0.917505, 0), App.Vector(8.732813, 0.941733, 0), App.Vector(8.803521, 0.961749, 0), App.Vector(8.877688, 0.976092, 0), App.Vector(8.95488, 0.985522, 0), App.Vector(9.007435, 0.987357, 0), App.Vector(9.034077, 0.988287, 0)], [4, 1, 1, 1, 1, 1, 1, 1, 1, 1, 1, 1, 4], [0, 1.421158178, 2.829480325, 4.252609904, 5.726645356, 6.474673747, 7.226451348, 7.977441196, 8.739482559, 9.519942951, 10.32157274, 11.149148792, 12], False, 3, [1, 1, 1, 1, 1, 1, 1, 1, 1, 1, 1, 1, 1, 1, 1], False),
    Part.BSplineCurve([App.Vector(9.034077, 0.988287, 0), App.Vector(9.061385, 0.986417, 0), App.Vector(9.11505, 0.982741, 0), App.Vector(9.193131, 0.971768, 0), App.Vector(9.267623, 0.958763, 0), App.Vector(9.337973, 0.94248, 0), App.Vector(9.404482, 0.922495, 0), App.Vector(9.467147, 0.89954, 0), App.Vector(9.525941, 0.873333, 0), App.Vector(9.580533, 0.843302, 0), App.Vector(9.631131, 0.810295, 0), App.Vector(9.678675, 0.774977, 0), App.Vector(9.720585, 0.734671, 0), App.Vector(9.760238, 0.692593, 0), App.Vector(9.794797, 0.646211, 0), App.Vector(9.826369, 0.597049, 0), App.Vector(9.853167, 0.544294, 0), App.Vector(9.883364, 0.470611, 0), App.Vector(9.914284, 0.377125, 0), App.Vector(9.948825, 0.267052, 0), App.Vector(9.974724, 0.158622, 0), App.Vector(9.996458, 0.053555, 0), App.Vector(10.010499, -0.049219, 0), App.Vector(10.020611, -0.149119, 0), App.Vector(10.022267, -0.246611, 0), App.Vector(10.019378, -0.310585, 0), App.Vector(10.017957, -0.342029, 0)], [4, 1, 1, 1, 1, 1, 1, 1, 1, 1, 1, 1, 1, 1, 1, 1, 1, 1, 1, 1, 1, 1, 1, 1, 4], [0, 1.04254728, 2.048792541, 3.00224853, 3.923105087, 4.79804786, 5.646501919, 6.464227683, 7.248100506, 8.017504481, 8.765055913, 9.500244792, 10.229727568, 10.965537121, 11.700200404, 12.45355415, 13.216173449, 14.732128481, 16.203485081, 17.610025167, 18.977448705, 20.289434687, 21.560307215, 22.800865913, 24], False, 3, [1, 1, 1, 1, 1, 1, 1, 1, 1, 1, 1, 1, 1, 1, 1, 1, 1, 1, 1, 1, 1, 1, 1, 1, 1, 1, 1], False),
    Part.BSplineCurve([App.Vector(10.017957, -0.342029, 0), App.Vector(10.01698, -0.4263, 0), App.Vector(10.015075, -0.590582, 0), App.Vector(10.00176, -0.792286, 0), App.Vector(9.987483, -0.945039, 0), App.Vector(9.975686, -1.051088, 0), App.Vector(9.962656, -1.150342, 0), App.Vector(9.95234, -1.213973, 0), App.Vector(9.94735, -1.244745, 0)], [4, 1, 1, 1, 1, 1, 4], [0, 1.673332579, 3.262118607, 4.012319707, 4.719959197, 5.38096689, 6], False, 3, [1, 1, 1, 1, 1, 1, 1, 1, 1], False),
    Part.LineSegment(App.Vector(9.94735, -1.244745, 0), App.Vector(6.4892, -1.244745, 0)),
    Part.LineSegment(App.Vector(8.41379, -0.574307, 0), App.Vector(9.489545, -0.574307, 0)),
    Part.BSplineCurve([App.Vector(9.489545, -0.574307, 0), App.Vector(9.493805, -0.557436, 0), App.Vector(9.50366, -0.518402, 0), App.Vector(9.510917, -0.449524, 0), App.Vector(9.516287, -0.36324, 0), App.Vector(9.516392, -0.299592, 0), App.Vector(9.516449, -0.264824, 0)], [4, 1, 1, 1, 4], [0, 0.669556034, 1.549180025, 2.661187206, 4], False, 3, [1, 1, 1, 1, 1, 1, 1], False),
    Part.BSplineCurve([App.Vector(9.516449, -0.264824, 0), App.Vector(9.516671, -0.231967, 0), App.Vector(9.517115, -0.166383, 0), App.Vector(9.497837, -0.068547, 0), App.Vector(9.465268, 0.027599, 0), App.Vector(9.426748, 0.10552, 0), App.Vector(9.386286, 0.16379, 0), App.Vector(9.347977, 0.202658, 0), App.Vector(9.302529, 0.235573, 0), App.Vector(9.250376, 0.263932, 0), App.Vector(9.190635, 0.284714, 0), App.Vector(9.124826, 0.302422, 0), App.Vector(9.051768, 0.313272, 0), App.Vector(9.000676, 0.316281, 0), App.Vector(8.974028, 0.31785, 0)], [4, 1, 1, 1, 1, 1, 1, 1, 1, 1, 1, 1, 4], [0, 1.29989643, 2.594751302, 3.929547968, 5.318022419, 6.024638324, 6.733832736, 7.469917789, 8.242501489, 9.078489731, 9.971146527, 10.941844606, 12], False, 3, [1, 1, 1, 1, 1, 1, 1, 1, 1, 1, 1, 1, 1, 1, 1], False),
    Part.BSplineCurve([App.Vector(8.974028, 0.31785, 0), App.Vector(8.953323, 0.317111, 0), App.Vector(8.912864, 0.315667, 0), App.Vector(8.853951, 0.30748, 0), App.Vector(8.79778, 0.29539, 0), App.Vector(8.745469, 0.276523, 0), App.Vector(8.695529, 0.254177, 0), App.Vector(8.649597, 0.225752, 0), App.Vector(8.607026, 0.192193, 0), App.Vector(8.567272, 0.154784, 0), App.Vector(8.531733, 0.112443, 0), App.Vector(8.500397, 0.066171, 0), App.Vector(8.474683, 0.015185, 0), App.Vector(8.453012, -0.039351, 0), App.Vector(8.435664, -0.098081, 0), App.Vector(8.423457, -0.160613, 0), App.Vector(8.415282, -0.227223, 0), App.Vector(8.413862, -0.272937, 0), App.Vector(8.413131, -0.296498, 0)], [4, 1, 1, 1, 1, 1, 1, 1, 1, 1, 1, 1, 1, 1, 1, 1, 4], [0, 1.059418694, 2.070133086, 3.039393338, 3.993307784, 4.909841662, 5.83442482, 6.748467736, 7.679875486, 8.622301396, 9.571223408, 10.532610832, 11.537858976, 12.570578314, 13.660929848, 14.794454277, 16], False, 3, [1, 1, 1, 1, 1, 1, 1, 1, 1, 1, 1, 1, 1, 1, 1, 1, 1, 1, 1], False),
    Part.LineSegment(App.Vector(8.413131, -0.296498, 0), App.Vector(8.41379, -0.574307, 0)),
], False)
sketch7.addConstraint([
    Sketcher.Constraint("Block", 3),
    Sketcher.Constraint("Block", 4),
    Sketcher.Constraint("Block", 6),
    Sketcher.Constraint("Block", 7),
    Sketcher.Constraint("Block", 9),
    Sketcher.Constraint("Block", 10),
    Sketcher.Constraint("Block", 11),
    Sketcher.Constraint("Block", 14),
    Sketcher.Constraint("Block", 15),
    Sketcher.Constraint("Block", 16),
    Sketcher.Constraint("Coincident", 0, 2, 1, 1),
    Sketcher.Constraint("Coincident", 1, 2, 2, 1),
    Sketcher.Constraint("Coincident", 2, 2, 3, 1),
    Sketcher.Constraint("Coincident", 4, 2, 5, 1),
    Sketcher.Constraint("Coincident", 5, 2, 6, 1),
    Sketcher.Constraint("Coincident", 7, 2, 8, 1),
    Sketcher.Constraint("Coincident", 8, 2, 9, 1),
    Sketcher.Constraint("Coincident", 11, 2, 12, 1),
    Sketcher.Constraint("Coincident", 12, 2, 0, 1),
    Sketcher.Constraint("Coincident", 13, 2, 14, 1),
    Sketcher.Constraint("Coincident", 16, 2, 17, 1),
    Sketcher.Constraint("Coincident", 17, 2, 13, 1),
    Sketcher.Constraint("Vertical", 0),
    Sketcher.Constraint("Horizontal", 1),
    Sketcher.Constraint("Vertical", 2),
    Sketcher.Constraint("Horizontal", 12),
    Sketcher.Constraint("Horizontal", 13),
    Sketcher.Constraint("Horizontal", 1, 2, 13, 2),
    Sketcher.Constraint("Vertical", 0, 2, 5, 2),
    Sketcher.Constraint("DistanceX", 13, 1, 13, 2, Q("1.075756 mm")),
])
pocket4 = body.newObject("PartDesign::Pocket", "Pocket003")
pocket4.Profile = sketch7
pocket4.Length = 0.5
pocket4.Reversed = True

doc.recompute()
